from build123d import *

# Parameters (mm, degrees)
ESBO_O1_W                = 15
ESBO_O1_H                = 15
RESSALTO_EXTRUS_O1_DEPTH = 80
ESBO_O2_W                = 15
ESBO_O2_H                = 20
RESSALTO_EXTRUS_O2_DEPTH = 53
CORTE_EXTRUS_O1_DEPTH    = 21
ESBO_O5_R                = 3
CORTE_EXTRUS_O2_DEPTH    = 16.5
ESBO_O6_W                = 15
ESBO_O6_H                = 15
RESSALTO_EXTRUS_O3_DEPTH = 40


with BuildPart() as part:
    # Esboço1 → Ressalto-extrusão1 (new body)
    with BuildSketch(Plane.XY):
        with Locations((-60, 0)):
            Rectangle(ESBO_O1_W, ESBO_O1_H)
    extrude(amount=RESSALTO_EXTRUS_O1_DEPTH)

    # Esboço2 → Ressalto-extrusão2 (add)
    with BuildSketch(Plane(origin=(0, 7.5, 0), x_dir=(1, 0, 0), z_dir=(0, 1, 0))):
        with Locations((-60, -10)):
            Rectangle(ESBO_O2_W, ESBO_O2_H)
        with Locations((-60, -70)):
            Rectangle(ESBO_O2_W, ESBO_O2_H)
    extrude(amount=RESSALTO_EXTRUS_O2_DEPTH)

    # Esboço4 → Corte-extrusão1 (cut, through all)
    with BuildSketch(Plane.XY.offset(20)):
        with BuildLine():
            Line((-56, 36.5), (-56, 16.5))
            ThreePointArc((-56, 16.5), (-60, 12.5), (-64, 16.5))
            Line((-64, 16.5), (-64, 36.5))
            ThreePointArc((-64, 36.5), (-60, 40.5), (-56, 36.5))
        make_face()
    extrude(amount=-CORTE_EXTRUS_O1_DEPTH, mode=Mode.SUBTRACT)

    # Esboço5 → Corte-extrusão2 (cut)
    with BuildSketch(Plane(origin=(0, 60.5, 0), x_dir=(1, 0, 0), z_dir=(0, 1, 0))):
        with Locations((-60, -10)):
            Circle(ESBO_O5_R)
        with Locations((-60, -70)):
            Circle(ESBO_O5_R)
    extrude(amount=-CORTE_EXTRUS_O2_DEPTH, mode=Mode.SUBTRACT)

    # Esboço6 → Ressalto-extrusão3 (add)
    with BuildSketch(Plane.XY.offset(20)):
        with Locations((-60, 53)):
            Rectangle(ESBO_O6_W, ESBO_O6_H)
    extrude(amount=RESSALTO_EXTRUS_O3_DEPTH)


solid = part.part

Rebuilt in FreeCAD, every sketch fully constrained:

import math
import FreeCAD as App
import Part
import Sketcher
from FreeCAD import Vector
Q = App.Units.Quantity

doc = App.newDocument("Part")
body = doc.addObject("PartDesign::Body", "Body")

sketch1 = body.newObject("Sketcher::SketchObject", "Sketch")
sketch1.AttachmentSupport = (doc.getObject("XY_Plane"), [""])
sketch1.MapMode = "FlatFace"
sketch1.addGeometry(Part.LineSegment(Vector(-68, 8, 0), Vector(-68, -8, 0)), False)
sketch1.addGeometry(Part.LineSegment(Vector(-68, -8, 0), Vector(-52, -8, 0)), False)
sketch1.addGeometry(Part.LineSegment(Vector(-52, -8, 0), Vector(-52, 8, 0)), False)
sketch1.addGeometry(Part.LineSegment(Vector(-52, 8, 0), Vector(-68, 8, 0)), False)
sketch1.addConstraint(Sketcher.Constraint("Coincident", 0, 2, 1, 1))
sketch1.addConstraint(Sketcher.Constraint("Coincident", 1, 2, 2, 1))
sketch1.addConstraint(Sketcher.Constraint("Coincident", 2, 2, 3, 1))
sketch1.addConstraint(Sketcher.Constraint("Coincident", 3, 2, 0, 1))
sketch1.addConstraint(Sketcher.Constraint("Vertical", 0))
sketch1.addConstraint(Sketcher.Constraint("Horizontal", 1))
sketch1.addConstraint(Sketcher.Constraint("Vertical", 2))
sketch1.addConstraint(Sketcher.Constraint("Horizontal", 3))
sketch1.addConstraint(Sketcher.Constraint("Equal", 3, 0))
sketch1.addConstraint(Sketcher.Constraint("DistanceX", 1, 1, 1, 2, Q("15 mm")))
sketch1.addConstraint(Sketcher.Constraint("DistanceX", 0, 2, -1, 1, Q("67.5 mm")))
sketch1.addConstraint(Sketcher.Constraint("DistanceY", 0, 2, -1, 1, Q("7.5 mm")))
pad1 = body.newObject("PartDesign::Pad", "Pad")
pad1.Profile = sketch1
pad1.Length = 80

sketch2 = body.newObject("Sketcher::SketchObject", "Sketch001")
sketch2.AttachmentSupport = (doc.getObject("XZ_Plane"), [""])
sketch2.MapMode = "FlatFace"
sketch2.AttachmentOffset = App.Placement(Vector(0, 0, -7.5), App.Rotation())
sketch2.addGeometry(Part.LineSegment(Vector(-68, 0, 0), Vector(-68, 20, 0)), False)
sketch2.addGeometry(Part.LineSegment(Vector(-68, 20, 0), Vector(-52, 20, 0)), False)
sketch2.addGeometry(Part.LineSegment(Vector(-52, 20, 0), Vector(-52, 0, 0)), False)
sketch2.addGeometry(Part.LineSegment(Vector(-52, 0, 0), Vector(-68, 0, 0)), False)
sketch2.addGeometry(Part.LineSegment(Vector(-68, 60, 0), Vector(-68, 80, 0)), False)
sketch2.addGeometry(Part.LineSegment(Vector(-68, 80, 0), Vector(-52, 80, 0)), False)
sketch2.addGeometry(Part.LineSegment(Vector(-52, 80, 0), Vector(-52, 60, 0)), False)
sketch2.addGeometry(Part.LineSegment(Vector(-52, 60, 0), Vector(-68, 60, 0)), False)
sketch2.addConstraint(Sketcher.Constraint("Coincident", 0, 2, 1, 1))
sketch2.addConstraint(Sketcher.Constraint("Coincident", 1, 2, 2, 1))
sketch2.addConstraint(Sketcher.Constraint("Coincident", 2, 2, 3, 1))
sketch2.addConstraint(Sketcher.Constraint("Coincident", 3, 2, 0, 1))
sketch2.addConstraint(Sketcher.Constraint("Coincident", 4, 2, 5, 1))
sketch2.addConstraint(Sketcher.Constraint("Coincident", 5, 2, 6, 1))
sketch2.addConstraint(Sketcher.Constraint("Coincident", 6, 2, 7, 1))
sketch2.addConstraint(Sketcher.Constraint("Coincident", 7, 2, 4, 1))
sketch2.addConstraint(Sketcher.Constraint("Vertical", 0))
sketch2.addConstraint(Sketcher.Constraint("Horizontal", 1))
sketch2.addConstraint(Sketcher.Constraint("Vertical", 2))
sketch2.addConstraint(Sketcher.Constraint("Horizontal", 3))
sketch2.addConstraint(Sketcher.Constraint("Vertical", 4))
sketch2.addConstraint(Sketcher.Constraint("Horizontal", 5))
sketch2.addConstraint(Sketcher.Constraint("Vertical", 6))
sketch2.addConstraint(Sketcher.Constraint("Horizontal", 7))
sketch2.addConstraint(Sketcher.Constraint("PointOnObject", 2, 2, -1))
sketch2.addConstraint(Sketcher.Constraint("Vertical", 3, 2, 4, 2))
sketch2.addConstraint(Sketcher.Constraint("Vertical", 2, 2, 5, 2))
sketch2.addConstraint(Sketcher.Constraint("Equal", 2, 4))
sketch2.addConstraint(Sketcher.Constraint("DistanceX", 1, 1, 1, 2, Q("15 mm")))
sketch2.addConstraint(Sketcher.Constraint("DistanceY", 0, 1, 0, 2, Q("20 mm")))
sketch2.addConstraint(Sketcher.Constraint("DistanceY", -1, 1, 4, 2, Q("80 mm")))
sketch2.addConstraint(Sketcher.Constraint("DistanceX", 0, 2, -1, 1, Q("67.5 mm")))
pad2 = body.newObject("PartDesign::Pad", "Pad001")
pad2.Profile = sketch2
pad2.Length = 53
pad2.Reversed = True

sketch3 = body.newObject("Sketcher::SketchObject", "Sketch002")
sketch3.AttachmentSupport = (doc.getObject("XY_Plane"), [""])
sketch3.MapMode = "FlatFace"
sketch3.AttachmentOffset = App.Placement(Vector(0, 0, 20), App.Rotation())
sketch3.addGeometry(Part.LineSegment(Vector(-56, 16.5, 0), Vector(-56, 36.5, 0)), False)
sketch3.addGeometry(Part.ArcOfCircle(Part.Circle(Vector(-60, 36.5, 0), Vector(0, 0, 1), 4), math.radians(0), math.radians(180)), False)
sketch3.addGeometry(Part.LineSegment(Vector(-64, 36.5, 0), Vector(-64, 16.5, 0)), False)
sketch3.addGeometry(Part.ArcOfCircle(Part.Circle(Vector(-60, 16.5, 0), Vector(0, 0, 1), 4), math.radians(180), math.radians(360)), False)
sketch3.addConstraint(Sketcher.Constraint("Tangent", 0, 2, 1, 1))
sketch3.addConstraint(Sketcher.Constraint("Tangent", 1, 2, 2, 1))
sketch3.addConstraint(Sketcher.Constraint("Tangent", 2, 2, 3, 1))
sketch3.addConstraint(Sketcher.Constraint("Tangent", 3, 2, 0, 1))
sketch3.addConstraint(Sketcher.Constraint("Vertical", 0))
sketch3.addConstraint(Sketcher.Constraint("Vertical", 2))
sketch3.addConstraint(Sketcher.Constraint("Radius", 1, Q("4 mm")))
sketch3.addConstraint(Sketcher.Constraint("DistanceY", 0, 1, 0, 2, Q("20 mm")))
sketch3.addConstraint(Sketcher.Constraint("DistanceX", 1, 3, -1, 1, Q("60 mm")))
sketch3.addConstraint(Sketcher.Constraint("DistanceY", -1, 1, 1, 3, Q("36.5 mm")))
pocket1 = body.newObject("PartDesign::Pocket", "Pocket")
pocket1.Profile = sketch3
pocket1.Type = "ThroughAll"

sketch4 = body.newObject("Sketcher::SketchObject", "Sketch003")
sketch4.AttachmentSupport = (doc.getObject("XZ_Plane"), [""])
sketch4.MapMode = "FlatFace"
sketch4.AttachmentOffset = App.Placement(Vector(0, 0, -60.5), App.Rotation())
sketch4.addGeometry(Part.Circle(Vector(-60, 10, 0), Vector(0, 0, 1), 3), False)
sketch4.addGeometry(Part.Circle(Vector(-60, 70, 0), Vector(0, 0, 1), 3), False)
sketch4.addConstraint(Sketcher.Constraint("Equal", 0, 1))
sketch4.addConstraint(Sketcher.Constraint("Vertical", 0, 3, 1, 3))
sketch4.addConstraint(Sketcher.Constraint("Diameter", 0, Q("6 mm")))
sketch4.addConstraint(Sketcher.Constraint("DistanceX", 0, 3, -1, 1, Q("60 mm")))
sketch4.addConstraint(Sketcher.Constraint("DistanceY", -1, 1, 0, 3, Q("10 mm")))
sketch4.addConstraint(Sketcher.Constraint("DistanceY", -1, 1, 1, 3, Q("70 mm")))
pocket2 = body.newObject("PartDesign::Pocket", "Pocket001")
pocket2.Profile = sketch4
pocket2.Length = 16.5
pocket2.Reversed = True

sketch5 = body.newObject("Sketcher::SketchObject", "Sketch004")
sketch5.AttachmentSupport = (doc.getObject("XY_Plane"), [""])
sketch5.MapMode = "FlatFace"
sketch5.AttachmentOffset = App.Placement(Vector(0, 0, 20), App.Rotation())
sketch5.addGeometry(Part.LineSegment(Vector(-68, 60, 0), Vector(-68, 46, 0)), False)
sketch5.addGeometry(Part.LineSegment(Vector(-68, 46, 0), Vector(-52, 46, 0)), False)
sketch5.addGeometry(Part.LineSegment(Vector(-52, 46, 0), Vector(-52, 60, 0)), False)
sketch5.addGeometry(Part.LineSegment(Vector(-52, 60, 0), Vector(-68, 60, 0)), False)
sketch5.addConstraint(Sketcher.Constraint("Coincident", 0, 2, 1, 1))
sketch5.addConstraint(Sketcher.Constraint("Coincident", 1, 2, 2, 1))
sketch5.addConstraint(Sketcher.Constraint("Coincident", 2, 2, 3, 1))
sketch5.addConstraint(Sketcher.Constraint("Coincident", 3, 2, 0, 1))
sketch5.addConstraint(Sketcher.Constraint("Vertical", 0))
sketch5.addConstraint(Sketcher.Constraint("Horizontal", 1))
sketch5.addConstraint(Sketcher.Constraint("Vertical", 2))
sketch5.addConstraint(Sketcher.Constraint("Horizontal", 3))
sketch5.addConstraint(Sketcher.Constraint("Equal", 3, 0))
sketch5.addConstraint(Sketcher.Constraint("DistanceX", 1, 1, 1, 2, Q("15 mm")))
sketch5.addConstraint(Sketcher.Constraint("DistanceX", 0, 2, -1, 1, Q("67.5 mm")))
sketch5.addConstraint(Sketcher.Constraint("DistanceY", -1, 1, 0, 2, Q("45.5 mm")))
pad3 = body.newObject("PartDesign::Pad", "Pad002")
pad3.Profile = sketch5
pad3.Length = 40

doc.recompute()
